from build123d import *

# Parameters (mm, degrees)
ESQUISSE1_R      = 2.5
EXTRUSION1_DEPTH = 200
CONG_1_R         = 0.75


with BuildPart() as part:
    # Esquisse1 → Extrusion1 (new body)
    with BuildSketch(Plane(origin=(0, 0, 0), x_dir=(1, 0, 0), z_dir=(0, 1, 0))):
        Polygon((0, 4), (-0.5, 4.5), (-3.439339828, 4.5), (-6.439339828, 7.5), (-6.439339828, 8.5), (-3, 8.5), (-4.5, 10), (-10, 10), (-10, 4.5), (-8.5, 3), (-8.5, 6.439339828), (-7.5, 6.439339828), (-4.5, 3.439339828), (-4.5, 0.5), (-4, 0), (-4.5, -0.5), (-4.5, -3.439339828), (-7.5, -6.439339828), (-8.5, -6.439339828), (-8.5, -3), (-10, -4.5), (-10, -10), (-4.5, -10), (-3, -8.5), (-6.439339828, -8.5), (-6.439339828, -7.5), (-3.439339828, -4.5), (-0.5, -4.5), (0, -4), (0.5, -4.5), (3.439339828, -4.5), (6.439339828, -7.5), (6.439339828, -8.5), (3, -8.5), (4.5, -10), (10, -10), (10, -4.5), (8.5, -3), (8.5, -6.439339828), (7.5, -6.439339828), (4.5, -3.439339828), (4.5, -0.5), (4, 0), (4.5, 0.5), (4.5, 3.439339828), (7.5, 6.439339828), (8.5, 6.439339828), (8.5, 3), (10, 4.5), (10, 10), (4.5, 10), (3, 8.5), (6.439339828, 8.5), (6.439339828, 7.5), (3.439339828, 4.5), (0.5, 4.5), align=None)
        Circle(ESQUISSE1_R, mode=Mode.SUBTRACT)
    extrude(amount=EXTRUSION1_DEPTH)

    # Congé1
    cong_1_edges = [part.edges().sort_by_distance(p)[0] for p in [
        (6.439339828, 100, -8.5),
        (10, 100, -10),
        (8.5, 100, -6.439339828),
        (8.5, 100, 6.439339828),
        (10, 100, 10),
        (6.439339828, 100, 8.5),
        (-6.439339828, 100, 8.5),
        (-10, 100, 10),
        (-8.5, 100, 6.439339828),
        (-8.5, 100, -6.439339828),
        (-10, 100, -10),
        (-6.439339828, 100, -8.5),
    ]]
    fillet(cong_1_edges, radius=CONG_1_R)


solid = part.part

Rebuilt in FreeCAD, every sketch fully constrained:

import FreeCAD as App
import Part
import Sketcher
from FreeCAD import Vector
Q = App.Units.Quantity


def edges_at(feature, points):
    """Names of the edges that pass closest to the given points."""
    edges = feature.Shape.Edges
    near = lambda p: min(range(len(edges)), key=lambda i: edges[i].distToShape(Part.Vertex(*p))[0])
    return sorted({f"Edge{near(p) + 1}" for p in points})

doc = App.newDocument("Part")
body = doc.addObject("PartDesign::Body", "Body")

sketch1 = body.newObject("Sketcher::SketchObject", "Sketch")
sketch1.AttachmentSupport = (doc.getObject("XZ_Plane"), [""])
sketch1.MapMode = "FlatFace"
sketch1.addGeometry([
    Part.LineSegment(Vector(0, -4, 0), Vector(-0.5, -4.5, 0)),
    Part.LineSegment(Vector(-0.5, -4.5, 0), Vector(-3.43934, -4.5, 0)),
    Part.LineSegment(Vector(-3.43934, -4.5, 0), Vector(-6.43934, -7.5, 0)),
    Part.LineSegment(Vector(-6.43934, -7.5, 0), Vector(-6.43934, -8.5, 0)),
    Part.LineSegment(Vector(-6.43934, -8.5, 0), Vector(-3, -8.5, 0)),
    Part.LineSegment(Vector(-3, -8.5, 0), Vector(-4.5, -10, 0)),
    Part.LineSegment(Vector(-4.5, -10, 0), Vector(-10, -10, 0)),
    Part.LineSegment(Vector(-10, -10, 0), Vector(-10, -4.5, 0)),
    Part.LineSegment(Vector(-10, -4.5, 0), Vector(-8.5, -3, 0)),
    Part.LineSegment(Vector(-8.5, -3, 0), Vector(-8.5, -6.43934, 0)),
    Part.LineSegment(Vector(-8.5, -6.43934, 0), Vector(-7.5, -6.43934, 0)),
    Part.LineSegment(Vector(-7.5, -6.43934, 0), Vector(-4.5, -3.43934, 0)),
    Part.LineSegment(Vector(-4.5, -3.43934, 0), Vector(-4.5, -0.5, 0)),
    Part.LineSegment(Vector(-4.5, -0.5, 0), Vector(-4, 0, 0)),
    Part.LineSegment(Vector(-4, 0, 0), Vector(-4.5, 0.5, 0)),
    Part.LineSegment(Vector(-4.5, 0.5, 0), Vector(-4.5, 3.43934, 0)),
    Part.LineSegment(Vector(-4.5, 3.43934, 0), Vector(-7.5, 6.43934, 0)),
    Part.LineSegment(Vector(-7.5, 6.43934, 0), Vector(-8.5, 6.43934, 0)),
    Part.LineSegment(Vector(-8.5, 6.43934, 0), Vector(-8.5, 3, 0)),
    Part.LineSegment(Vector(-8.5, 3, 0), Vector(-10, 4.5, 0)),
    Part.LineSegment(Vector(-10, 4.5, 0), Vector(-10, 10, 0)),
    Part.LineSegment(Vector(-10, 10, 0), Vector(-4.5, 10, 0)),
    Part.LineSegment(Vector(-4.5, 10, 0), Vector(-3, 8.5, 0)),
    Part.LineSegment(Vector(-3, 8.5, 0), Vector(-6.43934, 8.5, 0)),
    Part.LineSegment(Vector(-6.43934, 8.5, 0), Vector(-6.43934, 7.5, 0)),
    Part.LineSegment(Vector(-6.43934, 7.5, 0), Vector(-3.43934, 4.5, 0)),
    Part.LineSegment(Vector(-3.43934, 4.5, 0), Vector(-0.5, 4.5, 0)),
    Part.LineSegment(Vector(-0.5, 4.5, 0), Vector(0, 4, 0)),
    Part.LineSegment(Vector(0, 4, 0), Vector(0.5, 4.5, 0)),
    Part.LineSegment(Vector(0.5, 4.5, 0), Vector(3.43934, 4.5, 0)),
    Part.LineSegment(Vector(3.43934, 4.5, 0), Vector(6.43934, 7.5, 0)),
    Part.LineSegment(Vector(6.43934, 7.5, 0), Vector(6.43934, 8.5, 0)),
    Part.LineSegment(Vector(6.43934, 8.5, 0), Vector(3, 8.5, 0)),
    Part.LineSegment(Vector(3, 8.5, 0), Vector(4.5, 10, 0)),
    Part.LineSegment(Vector(4.5, 10, 0), Vector(10, 10, 0)),
    Part.LineSegment(Vector(10, 10, 0), Vector(10, 4.5, 0)),
    Part.LineSegment(Vector(10, 4.5, 0), Vector(8.5, 3, 0)),
    Part.LineSegment(Vector(8.5, 3, 0), Vector(8.5, 6.43934, 0)),
    Part.LineSegment(Vector(8.5, 6.43934, 0), Vector(7.5, 6.43934, 0)),
    Part.LineSegment(Vector(7.5, 6.43934, 0), Vector(4.5, 3.43934, 0)),
    Part.LineSegment(Vector(4.5, 3.43934, 0), Vector(4.5, 0.5, 0)),
    Part.LineSegment(Vector(4.5, 0.5, 0), Vector(4, 0, 0)),
    Part.LineSegment(Vector(4, 0, 0), Vector(4.5, -0.5, 0)),
    Part.LineSegment(Vector(4.5, -0.5, 0), Vector(4.5, -3.43934, 0)),
    Part.LineSegment(Vector(4.5, -3.43934, 0), Vector(7.5, -6.43934, 0)),
    Part.LineSegment(Vector(7.5, -6.43934, 0), Vector(8.5, -6.43934, 0)),
    Part.LineSegment(Vector(8.5, -6.43934, 0), Vector(8.5, -3, 0)),
    Part.LineSegment(Vector(8.5, -3, 0), Vector(10, -4.5, 0)),
    Part.LineSegment(Vector(10, -4.5, 0), Vector(10, -10, 0)),
    Part.LineSegment(Vector(10, -10, 0), Vector(4.5, -10, 0)),
    Part.LineSegment(Vector(4.5, -10, 0), Vector(3, -8.5, 0)),
    Part.LineSegment(Vector(3, -8.5, 0), Vector(6.43934, -8.5, 0)),
    Part.LineSegment(Vector(6.43934, -8.5, 0), Vector(6.43934, -7.5, 0)),
    Part.LineSegment(Vector(6.43934, -7.5, 0), Vector(3.43934, -4.5, 0)),
    Part.LineSegment(Vector(3.43934, -4.5, 0), Vector(0.5, -4.5, 0)),
    Part.LineSegment(Vector(0.5, -4.5, 0), Vector(0, -4, 0)),
    Part.Circle(Vector(0, 0, 0), Vector(0, 0, 1), 2.5),
], False)
sketch1.addConstraint([
    Sketcher.Constraint("Coincident", 0, 2, 1, 1),
    Sketcher.Constraint("Coincident", 1, 2, 2, 1),
    Sketcher.Constraint("Coincident", 2, 2, 3, 1),
    Sketcher.Constraint("Coincident", 3, 2, 4, 1),
    Sketcher.Constraint("Coincident", 4, 2, 5, 1),
    Sketcher.Constraint("Coincident", 5, 2, 6, 1),
    Sketcher.Constraint("Coincident", 6, 2, 7, 1),
    Sketcher.Constraint("Coincident", 7, 2, 8, 1),
    Sketcher.Constraint("Coincident", 8, 2, 9, 1),
    Sketcher.Constraint("Coincident", 9, 2, 10, 1),
    Sketcher.Constraint("Coincident", 10, 2, 11, 1),
    Sketcher.Constraint("Coincident", 11, 2, 12, 1),
    Sketcher.Constraint("Coincident", 12, 2, 13, 1),
    Sketcher.Constraint("Coincident", 13, 2, 14, 1),
    Sketcher.Constraint("Coincident", 14, 2, 15, 1),
    Sketcher.Constraint("Coincident", 15, 2, 16, 1),
    Sketcher.Constraint("Coincident", 16, 2, 17, 1),
    Sketcher.Constraint("Coincident", 17, 2, 18, 1),
    Sketcher.Constraint("Coincident", 18, 2, 19, 1),
    Sketcher.Constraint("Coincident", 19, 2, 20, 1),
    Sketcher.Constraint("Coincident", 20, 2, 21, 1),
    Sketcher.Constraint("Coincident", 21, 2, 22, 1),
    Sketcher.Constraint("Coincident", 22, 2, 23, 1),
    Sketcher.Constraint("Coincident", 23, 2, 24, 1),
    Sketcher.Constraint("Coincident", 24, 2, 25, 1),
    Sketcher.Constraint("Coincident", 25, 2, 26, 1),
    Sketcher.Constraint("Coincident", 26, 2, 27, 1),
    Sketcher.Constraint("Coincident", 27, 2, 28, 1),
    Sketcher.Constraint("Coincident", 28, 2, 29, 1),
    Sketcher.Constraint("Coincident", 29, 2, 30, 1),
    Sketcher.Constraint("Coincident", 30, 2, 31, 1),
    Sketcher.Constraint("Coincident", 31, 2, 32, 1),
    Sketcher.Constraint("Coincident", 32, 2, 33, 1),
    Sketcher.Constraint("Coincident", 33, 2, 34, 1),
    Sketcher.Constraint("Coincident", 34, 2, 35, 1),
    Sketcher.Constraint("Coincident", 35, 2, 36, 1),
    Sketcher.Constraint("Coincident", 36, 2, 37, 1),
    Sketcher.Constraint("Coincident", 37, 2, 38, 1),
    Sketcher.Constraint("Coincident", 38, 2, 39, 1),
    Sketcher.Constraint("Coincident", 39, 2, 40, 1),
    Sketcher.Constraint("Coincident", 40, 2, 41, 1),
    Sketcher.Constraint("Coincident", 41, 2, 42, 1),
    Sketcher.Constraint("Coincident", 42, 2, 43, 1),
    Sketcher.Constraint("Coincident", 43, 2, 44, 1),
    Sketcher.Constraint("Coincident", 44, 2, 45, 1),
    Sketcher.Constraint("Coincident", 45, 2, 46, 1),
    Sketcher.Constraint("Coincident", 46, 2, 47, 1),
    Sketcher.Constraint("Coincident", 47, 2, 48, 1),
    Sketcher.Constraint("Coincident", 48, 2, 49, 1),
    Sketcher.Constraint("Coincident", 49, 2, 50, 1),
    Sketcher.Constraint("Coincident", 50, 2, 51, 1),
    Sketcher.Constraint("Coincident", 51, 2, 52, 1),
    Sketcher.Constraint("Coincident", 52, 2, 53, 1),
    Sketcher.Constraint("Coincident", 53, 2, 54, 1),
    Sketcher.Constraint("Coincident", 54, 2, 55, 1),
    Sketcher.Constraint("Coincident", 55, 2, 0, 1),
    Sketcher.Constraint("Horizontal", 1),
    Sketcher.Constraint("Vertical", 3),
    Sketcher.Constraint("Horizontal", 4),
    Sketcher.Constraint("Horizontal", 6),
    Sketcher.Constraint("Vertical", 7),
    Sketcher.Constraint("Vertical", 9),
    Sketcher.Constraint("Horizontal", 10),
    Sketcher.Constraint("Vertical", 12),
    Sketcher.Constraint("Vertical", 15),
    Sketcher.Constraint("Horizontal", 17),
    Sketcher.Constraint("Vertical", 18),
    Sketcher.Constraint("Vertical", 20),
    Sketcher.Constraint("Horizontal", 21),
    Sketcher.Constraint("Horizontal", 23),
    Sketcher.Constraint("Vertical", 24),
    Sketcher.Constraint("Horizontal", 26),
    Sketcher.Constraint("Horizontal", 29),
    Sketcher.Constraint("Vertical", 31),
    Sketcher.Constraint("Horizontal", 32),
    Sketcher.Constraint("Horizontal", 34),
    Sketcher.Constraint("Vertical", 35),
    Sketcher.Constraint("Vertical", 37),
    Sketcher.Constraint("Horizontal", 38),
    Sketcher.Constraint("Vertical", 40),
    Sketcher.Constraint("Vertical", 43),
    Sketcher.Constraint("Horizontal", 45),
    Sketcher.Constraint("Vertical", 46),
    Sketcher.Constraint("Vertical", 48),
    Sketcher.Constraint("Horizontal", 49),
    Sketcher.Constraint("Horizontal", 51),
    Sketcher.Constraint("Vertical", 52),
    Sketcher.Constraint("Horizontal", 54),
    Sketcher.Constraint("Coincident", 56, 3, -1, 1),
    Sketcher.Constraint("Symmetric", 0, 2, 28, 2, -1, 1),
    Sketcher.Constraint("Symmetric", 2, 2, 30, 2, -1, 1),
    Sketcher.Constraint("Symmetric", 4, 2, 32, 2, -1, 1),
    Sketcher.Constraint("Symmetric", 5, 2, 33, 2, -1, 1),
    Sketcher.Constraint("Symmetric", 7, 2, 35, 2, -1, 1),
    Sketcher.Constraint("Symmetric", 8, 2, 36, 2, -1, 1),
    Sketcher.Constraint("Symmetric", 10, 2, 38, 2, -1, 1),
    Sketcher.Constraint("Symmetric", 11, 2, 39, 2, -1, 1),
    Sketcher.Constraint("Symmetric", 13, 2, 41, 2, -1, 1),
    Sketcher.Constraint("Symmetric", 14, 2, 42, 2, -1, 1),
    Sketcher.Constraint("Symmetric", 16, 2, 44, 2, -1, 1),
    Sketcher.Constraint("Symmetric", 18, 2, 46, 2, -1, 1),
    Sketcher.Constraint("Symmetric", 19, 2, 47, 2, -1, 1),
    Sketcher.Constraint("Symmetric", 21, 2, 49, 2, -1, 1),
    Sketcher.Constraint("Symmetric", 22, 2, 50, 2, -1, 1),
    Sketcher.Constraint("Symmetric", 24, 2, 52, 2, -1, 1),
    Sketcher.Constraint("Symmetric", 25, 2, 53, 2, -1, 1),
    Sketcher.Constraint("Symmetric", 27, 2, 55, 2, -1, 1),
    Sketcher.Constraint("Symmetric", 26, 2, 28, 2, -2),
    Sketcher.Constraint("Symmetric", 24, 2, 30, 2, -2),
    Sketcher.Constraint("Symmetric", 22, 2, 32, 2, -2),
    Sketcher.Constraint("Symmetric", 21, 2, 33, 2, -2),
    Sketcher.Constraint("Symmetric", 19, 2, 35, 2, -2),
    Sketcher.Constraint("Symmetric", 18, 2, 36, 2, -2),
    Sketcher.Constraint("Symmetric", 16, 2, 38, 2, -2),
    Sketcher.Constraint("Symmetric", 15, 2, 39, 2, -2),
    Sketcher.Constraint("PointOnObject", 13, 2, -1),
    Sketcher.Constraint("PointOnObject", 27, 2, -2),
    Sketcher.Constraint("Parallel", 0, 2),
    Sketcher.Constraint("Parallel", 2, 5),
    Sketcher.Constraint("Parallel", 5, 8),
    Sketcher.Constraint("Parallel", 8, 11),
    Sketcher.Constraint("Parallel", 11, 13),
    Sketcher.Constraint("Perpendicular", 13, 14),
    Sketcher.Constraint("Parallel", 14, 16),
    Sketcher.Constraint("Parallel", 22, 25),
    Sketcher.Constraint("Parallel", 28, 30),
    Sketcher.Constraint("Parallel", 39, 41),
    Sketcher.Constraint("Parallel", 42, 44),
    Sketcher.Constraint("Parallel", 53, 55),
    Sketcher.Constraint("Horizontal", 1, 2, 7, 2),
    Sketcher.Constraint("Vertical", 5, 2, 11, 2),
    Sketcher.Constraint("Equal", 45, 3),
    Sketcher.Constraint("Equal", 49, 7),
    Sketcher.Constraint("Equal", 51, 9),
    Sketcher.Constraint("Equal", 54, 12),
    Sketcher.Constraint("Equal", 5, 8),
    Sketcher.Constraint("Equal", 0, 13),
    Sketcher.Constraint("Diameter", 56, Q("5 mm")),
    Sketcher.Constraint("DistanceX", 10, 1, 10, 2, Q("1 mm")),
    Sketcher.Constraint("DistanceX", 6, 2, 6, 1, Q("5.5 mm")),
    Sketcher.Constraint("DistanceX", 4, 2, -1, 1, Q("3 mm")),
    Sketcher.Constraint("DistanceY", 5, 2, -1, 1, Q("10 mm")),
    Sketcher.Constraint("DistanceX", 13, 2, -1, 1, Q("4 mm")),
    Sketcher.Constraint("DistanceX", 1, 2, 1, 1, Q("2.93934 mm")),
])
pad1 = body.newObject("PartDesign::Pad", "Pad")
pad1.Profile = sketch1
pad1.Length = 200
pad1.Reversed = True
doc.recompute()

fillet = body.newObject("PartDesign::Fillet", "Fillet")
fillet.Base = (pad1, edges_at(pad1, [
    (6.439, 100, -8.5),
    (10, 100, -10),
    (8.5, 100, -6.439),
    (8.5, 100, 6.439),
    (10, 100, 10),
    (6.439, 100, 8.5),
    (-6.439, 100, 8.5),
    (-10, 100, 10),
    (-8.5, 100, 6.439),
    (-8.5, 100, -6.439),
    (-10, 100, -10),
    (-6.439, 100, -8.5),
]))
fillet.Radius = 0.75

doc.recompute()
